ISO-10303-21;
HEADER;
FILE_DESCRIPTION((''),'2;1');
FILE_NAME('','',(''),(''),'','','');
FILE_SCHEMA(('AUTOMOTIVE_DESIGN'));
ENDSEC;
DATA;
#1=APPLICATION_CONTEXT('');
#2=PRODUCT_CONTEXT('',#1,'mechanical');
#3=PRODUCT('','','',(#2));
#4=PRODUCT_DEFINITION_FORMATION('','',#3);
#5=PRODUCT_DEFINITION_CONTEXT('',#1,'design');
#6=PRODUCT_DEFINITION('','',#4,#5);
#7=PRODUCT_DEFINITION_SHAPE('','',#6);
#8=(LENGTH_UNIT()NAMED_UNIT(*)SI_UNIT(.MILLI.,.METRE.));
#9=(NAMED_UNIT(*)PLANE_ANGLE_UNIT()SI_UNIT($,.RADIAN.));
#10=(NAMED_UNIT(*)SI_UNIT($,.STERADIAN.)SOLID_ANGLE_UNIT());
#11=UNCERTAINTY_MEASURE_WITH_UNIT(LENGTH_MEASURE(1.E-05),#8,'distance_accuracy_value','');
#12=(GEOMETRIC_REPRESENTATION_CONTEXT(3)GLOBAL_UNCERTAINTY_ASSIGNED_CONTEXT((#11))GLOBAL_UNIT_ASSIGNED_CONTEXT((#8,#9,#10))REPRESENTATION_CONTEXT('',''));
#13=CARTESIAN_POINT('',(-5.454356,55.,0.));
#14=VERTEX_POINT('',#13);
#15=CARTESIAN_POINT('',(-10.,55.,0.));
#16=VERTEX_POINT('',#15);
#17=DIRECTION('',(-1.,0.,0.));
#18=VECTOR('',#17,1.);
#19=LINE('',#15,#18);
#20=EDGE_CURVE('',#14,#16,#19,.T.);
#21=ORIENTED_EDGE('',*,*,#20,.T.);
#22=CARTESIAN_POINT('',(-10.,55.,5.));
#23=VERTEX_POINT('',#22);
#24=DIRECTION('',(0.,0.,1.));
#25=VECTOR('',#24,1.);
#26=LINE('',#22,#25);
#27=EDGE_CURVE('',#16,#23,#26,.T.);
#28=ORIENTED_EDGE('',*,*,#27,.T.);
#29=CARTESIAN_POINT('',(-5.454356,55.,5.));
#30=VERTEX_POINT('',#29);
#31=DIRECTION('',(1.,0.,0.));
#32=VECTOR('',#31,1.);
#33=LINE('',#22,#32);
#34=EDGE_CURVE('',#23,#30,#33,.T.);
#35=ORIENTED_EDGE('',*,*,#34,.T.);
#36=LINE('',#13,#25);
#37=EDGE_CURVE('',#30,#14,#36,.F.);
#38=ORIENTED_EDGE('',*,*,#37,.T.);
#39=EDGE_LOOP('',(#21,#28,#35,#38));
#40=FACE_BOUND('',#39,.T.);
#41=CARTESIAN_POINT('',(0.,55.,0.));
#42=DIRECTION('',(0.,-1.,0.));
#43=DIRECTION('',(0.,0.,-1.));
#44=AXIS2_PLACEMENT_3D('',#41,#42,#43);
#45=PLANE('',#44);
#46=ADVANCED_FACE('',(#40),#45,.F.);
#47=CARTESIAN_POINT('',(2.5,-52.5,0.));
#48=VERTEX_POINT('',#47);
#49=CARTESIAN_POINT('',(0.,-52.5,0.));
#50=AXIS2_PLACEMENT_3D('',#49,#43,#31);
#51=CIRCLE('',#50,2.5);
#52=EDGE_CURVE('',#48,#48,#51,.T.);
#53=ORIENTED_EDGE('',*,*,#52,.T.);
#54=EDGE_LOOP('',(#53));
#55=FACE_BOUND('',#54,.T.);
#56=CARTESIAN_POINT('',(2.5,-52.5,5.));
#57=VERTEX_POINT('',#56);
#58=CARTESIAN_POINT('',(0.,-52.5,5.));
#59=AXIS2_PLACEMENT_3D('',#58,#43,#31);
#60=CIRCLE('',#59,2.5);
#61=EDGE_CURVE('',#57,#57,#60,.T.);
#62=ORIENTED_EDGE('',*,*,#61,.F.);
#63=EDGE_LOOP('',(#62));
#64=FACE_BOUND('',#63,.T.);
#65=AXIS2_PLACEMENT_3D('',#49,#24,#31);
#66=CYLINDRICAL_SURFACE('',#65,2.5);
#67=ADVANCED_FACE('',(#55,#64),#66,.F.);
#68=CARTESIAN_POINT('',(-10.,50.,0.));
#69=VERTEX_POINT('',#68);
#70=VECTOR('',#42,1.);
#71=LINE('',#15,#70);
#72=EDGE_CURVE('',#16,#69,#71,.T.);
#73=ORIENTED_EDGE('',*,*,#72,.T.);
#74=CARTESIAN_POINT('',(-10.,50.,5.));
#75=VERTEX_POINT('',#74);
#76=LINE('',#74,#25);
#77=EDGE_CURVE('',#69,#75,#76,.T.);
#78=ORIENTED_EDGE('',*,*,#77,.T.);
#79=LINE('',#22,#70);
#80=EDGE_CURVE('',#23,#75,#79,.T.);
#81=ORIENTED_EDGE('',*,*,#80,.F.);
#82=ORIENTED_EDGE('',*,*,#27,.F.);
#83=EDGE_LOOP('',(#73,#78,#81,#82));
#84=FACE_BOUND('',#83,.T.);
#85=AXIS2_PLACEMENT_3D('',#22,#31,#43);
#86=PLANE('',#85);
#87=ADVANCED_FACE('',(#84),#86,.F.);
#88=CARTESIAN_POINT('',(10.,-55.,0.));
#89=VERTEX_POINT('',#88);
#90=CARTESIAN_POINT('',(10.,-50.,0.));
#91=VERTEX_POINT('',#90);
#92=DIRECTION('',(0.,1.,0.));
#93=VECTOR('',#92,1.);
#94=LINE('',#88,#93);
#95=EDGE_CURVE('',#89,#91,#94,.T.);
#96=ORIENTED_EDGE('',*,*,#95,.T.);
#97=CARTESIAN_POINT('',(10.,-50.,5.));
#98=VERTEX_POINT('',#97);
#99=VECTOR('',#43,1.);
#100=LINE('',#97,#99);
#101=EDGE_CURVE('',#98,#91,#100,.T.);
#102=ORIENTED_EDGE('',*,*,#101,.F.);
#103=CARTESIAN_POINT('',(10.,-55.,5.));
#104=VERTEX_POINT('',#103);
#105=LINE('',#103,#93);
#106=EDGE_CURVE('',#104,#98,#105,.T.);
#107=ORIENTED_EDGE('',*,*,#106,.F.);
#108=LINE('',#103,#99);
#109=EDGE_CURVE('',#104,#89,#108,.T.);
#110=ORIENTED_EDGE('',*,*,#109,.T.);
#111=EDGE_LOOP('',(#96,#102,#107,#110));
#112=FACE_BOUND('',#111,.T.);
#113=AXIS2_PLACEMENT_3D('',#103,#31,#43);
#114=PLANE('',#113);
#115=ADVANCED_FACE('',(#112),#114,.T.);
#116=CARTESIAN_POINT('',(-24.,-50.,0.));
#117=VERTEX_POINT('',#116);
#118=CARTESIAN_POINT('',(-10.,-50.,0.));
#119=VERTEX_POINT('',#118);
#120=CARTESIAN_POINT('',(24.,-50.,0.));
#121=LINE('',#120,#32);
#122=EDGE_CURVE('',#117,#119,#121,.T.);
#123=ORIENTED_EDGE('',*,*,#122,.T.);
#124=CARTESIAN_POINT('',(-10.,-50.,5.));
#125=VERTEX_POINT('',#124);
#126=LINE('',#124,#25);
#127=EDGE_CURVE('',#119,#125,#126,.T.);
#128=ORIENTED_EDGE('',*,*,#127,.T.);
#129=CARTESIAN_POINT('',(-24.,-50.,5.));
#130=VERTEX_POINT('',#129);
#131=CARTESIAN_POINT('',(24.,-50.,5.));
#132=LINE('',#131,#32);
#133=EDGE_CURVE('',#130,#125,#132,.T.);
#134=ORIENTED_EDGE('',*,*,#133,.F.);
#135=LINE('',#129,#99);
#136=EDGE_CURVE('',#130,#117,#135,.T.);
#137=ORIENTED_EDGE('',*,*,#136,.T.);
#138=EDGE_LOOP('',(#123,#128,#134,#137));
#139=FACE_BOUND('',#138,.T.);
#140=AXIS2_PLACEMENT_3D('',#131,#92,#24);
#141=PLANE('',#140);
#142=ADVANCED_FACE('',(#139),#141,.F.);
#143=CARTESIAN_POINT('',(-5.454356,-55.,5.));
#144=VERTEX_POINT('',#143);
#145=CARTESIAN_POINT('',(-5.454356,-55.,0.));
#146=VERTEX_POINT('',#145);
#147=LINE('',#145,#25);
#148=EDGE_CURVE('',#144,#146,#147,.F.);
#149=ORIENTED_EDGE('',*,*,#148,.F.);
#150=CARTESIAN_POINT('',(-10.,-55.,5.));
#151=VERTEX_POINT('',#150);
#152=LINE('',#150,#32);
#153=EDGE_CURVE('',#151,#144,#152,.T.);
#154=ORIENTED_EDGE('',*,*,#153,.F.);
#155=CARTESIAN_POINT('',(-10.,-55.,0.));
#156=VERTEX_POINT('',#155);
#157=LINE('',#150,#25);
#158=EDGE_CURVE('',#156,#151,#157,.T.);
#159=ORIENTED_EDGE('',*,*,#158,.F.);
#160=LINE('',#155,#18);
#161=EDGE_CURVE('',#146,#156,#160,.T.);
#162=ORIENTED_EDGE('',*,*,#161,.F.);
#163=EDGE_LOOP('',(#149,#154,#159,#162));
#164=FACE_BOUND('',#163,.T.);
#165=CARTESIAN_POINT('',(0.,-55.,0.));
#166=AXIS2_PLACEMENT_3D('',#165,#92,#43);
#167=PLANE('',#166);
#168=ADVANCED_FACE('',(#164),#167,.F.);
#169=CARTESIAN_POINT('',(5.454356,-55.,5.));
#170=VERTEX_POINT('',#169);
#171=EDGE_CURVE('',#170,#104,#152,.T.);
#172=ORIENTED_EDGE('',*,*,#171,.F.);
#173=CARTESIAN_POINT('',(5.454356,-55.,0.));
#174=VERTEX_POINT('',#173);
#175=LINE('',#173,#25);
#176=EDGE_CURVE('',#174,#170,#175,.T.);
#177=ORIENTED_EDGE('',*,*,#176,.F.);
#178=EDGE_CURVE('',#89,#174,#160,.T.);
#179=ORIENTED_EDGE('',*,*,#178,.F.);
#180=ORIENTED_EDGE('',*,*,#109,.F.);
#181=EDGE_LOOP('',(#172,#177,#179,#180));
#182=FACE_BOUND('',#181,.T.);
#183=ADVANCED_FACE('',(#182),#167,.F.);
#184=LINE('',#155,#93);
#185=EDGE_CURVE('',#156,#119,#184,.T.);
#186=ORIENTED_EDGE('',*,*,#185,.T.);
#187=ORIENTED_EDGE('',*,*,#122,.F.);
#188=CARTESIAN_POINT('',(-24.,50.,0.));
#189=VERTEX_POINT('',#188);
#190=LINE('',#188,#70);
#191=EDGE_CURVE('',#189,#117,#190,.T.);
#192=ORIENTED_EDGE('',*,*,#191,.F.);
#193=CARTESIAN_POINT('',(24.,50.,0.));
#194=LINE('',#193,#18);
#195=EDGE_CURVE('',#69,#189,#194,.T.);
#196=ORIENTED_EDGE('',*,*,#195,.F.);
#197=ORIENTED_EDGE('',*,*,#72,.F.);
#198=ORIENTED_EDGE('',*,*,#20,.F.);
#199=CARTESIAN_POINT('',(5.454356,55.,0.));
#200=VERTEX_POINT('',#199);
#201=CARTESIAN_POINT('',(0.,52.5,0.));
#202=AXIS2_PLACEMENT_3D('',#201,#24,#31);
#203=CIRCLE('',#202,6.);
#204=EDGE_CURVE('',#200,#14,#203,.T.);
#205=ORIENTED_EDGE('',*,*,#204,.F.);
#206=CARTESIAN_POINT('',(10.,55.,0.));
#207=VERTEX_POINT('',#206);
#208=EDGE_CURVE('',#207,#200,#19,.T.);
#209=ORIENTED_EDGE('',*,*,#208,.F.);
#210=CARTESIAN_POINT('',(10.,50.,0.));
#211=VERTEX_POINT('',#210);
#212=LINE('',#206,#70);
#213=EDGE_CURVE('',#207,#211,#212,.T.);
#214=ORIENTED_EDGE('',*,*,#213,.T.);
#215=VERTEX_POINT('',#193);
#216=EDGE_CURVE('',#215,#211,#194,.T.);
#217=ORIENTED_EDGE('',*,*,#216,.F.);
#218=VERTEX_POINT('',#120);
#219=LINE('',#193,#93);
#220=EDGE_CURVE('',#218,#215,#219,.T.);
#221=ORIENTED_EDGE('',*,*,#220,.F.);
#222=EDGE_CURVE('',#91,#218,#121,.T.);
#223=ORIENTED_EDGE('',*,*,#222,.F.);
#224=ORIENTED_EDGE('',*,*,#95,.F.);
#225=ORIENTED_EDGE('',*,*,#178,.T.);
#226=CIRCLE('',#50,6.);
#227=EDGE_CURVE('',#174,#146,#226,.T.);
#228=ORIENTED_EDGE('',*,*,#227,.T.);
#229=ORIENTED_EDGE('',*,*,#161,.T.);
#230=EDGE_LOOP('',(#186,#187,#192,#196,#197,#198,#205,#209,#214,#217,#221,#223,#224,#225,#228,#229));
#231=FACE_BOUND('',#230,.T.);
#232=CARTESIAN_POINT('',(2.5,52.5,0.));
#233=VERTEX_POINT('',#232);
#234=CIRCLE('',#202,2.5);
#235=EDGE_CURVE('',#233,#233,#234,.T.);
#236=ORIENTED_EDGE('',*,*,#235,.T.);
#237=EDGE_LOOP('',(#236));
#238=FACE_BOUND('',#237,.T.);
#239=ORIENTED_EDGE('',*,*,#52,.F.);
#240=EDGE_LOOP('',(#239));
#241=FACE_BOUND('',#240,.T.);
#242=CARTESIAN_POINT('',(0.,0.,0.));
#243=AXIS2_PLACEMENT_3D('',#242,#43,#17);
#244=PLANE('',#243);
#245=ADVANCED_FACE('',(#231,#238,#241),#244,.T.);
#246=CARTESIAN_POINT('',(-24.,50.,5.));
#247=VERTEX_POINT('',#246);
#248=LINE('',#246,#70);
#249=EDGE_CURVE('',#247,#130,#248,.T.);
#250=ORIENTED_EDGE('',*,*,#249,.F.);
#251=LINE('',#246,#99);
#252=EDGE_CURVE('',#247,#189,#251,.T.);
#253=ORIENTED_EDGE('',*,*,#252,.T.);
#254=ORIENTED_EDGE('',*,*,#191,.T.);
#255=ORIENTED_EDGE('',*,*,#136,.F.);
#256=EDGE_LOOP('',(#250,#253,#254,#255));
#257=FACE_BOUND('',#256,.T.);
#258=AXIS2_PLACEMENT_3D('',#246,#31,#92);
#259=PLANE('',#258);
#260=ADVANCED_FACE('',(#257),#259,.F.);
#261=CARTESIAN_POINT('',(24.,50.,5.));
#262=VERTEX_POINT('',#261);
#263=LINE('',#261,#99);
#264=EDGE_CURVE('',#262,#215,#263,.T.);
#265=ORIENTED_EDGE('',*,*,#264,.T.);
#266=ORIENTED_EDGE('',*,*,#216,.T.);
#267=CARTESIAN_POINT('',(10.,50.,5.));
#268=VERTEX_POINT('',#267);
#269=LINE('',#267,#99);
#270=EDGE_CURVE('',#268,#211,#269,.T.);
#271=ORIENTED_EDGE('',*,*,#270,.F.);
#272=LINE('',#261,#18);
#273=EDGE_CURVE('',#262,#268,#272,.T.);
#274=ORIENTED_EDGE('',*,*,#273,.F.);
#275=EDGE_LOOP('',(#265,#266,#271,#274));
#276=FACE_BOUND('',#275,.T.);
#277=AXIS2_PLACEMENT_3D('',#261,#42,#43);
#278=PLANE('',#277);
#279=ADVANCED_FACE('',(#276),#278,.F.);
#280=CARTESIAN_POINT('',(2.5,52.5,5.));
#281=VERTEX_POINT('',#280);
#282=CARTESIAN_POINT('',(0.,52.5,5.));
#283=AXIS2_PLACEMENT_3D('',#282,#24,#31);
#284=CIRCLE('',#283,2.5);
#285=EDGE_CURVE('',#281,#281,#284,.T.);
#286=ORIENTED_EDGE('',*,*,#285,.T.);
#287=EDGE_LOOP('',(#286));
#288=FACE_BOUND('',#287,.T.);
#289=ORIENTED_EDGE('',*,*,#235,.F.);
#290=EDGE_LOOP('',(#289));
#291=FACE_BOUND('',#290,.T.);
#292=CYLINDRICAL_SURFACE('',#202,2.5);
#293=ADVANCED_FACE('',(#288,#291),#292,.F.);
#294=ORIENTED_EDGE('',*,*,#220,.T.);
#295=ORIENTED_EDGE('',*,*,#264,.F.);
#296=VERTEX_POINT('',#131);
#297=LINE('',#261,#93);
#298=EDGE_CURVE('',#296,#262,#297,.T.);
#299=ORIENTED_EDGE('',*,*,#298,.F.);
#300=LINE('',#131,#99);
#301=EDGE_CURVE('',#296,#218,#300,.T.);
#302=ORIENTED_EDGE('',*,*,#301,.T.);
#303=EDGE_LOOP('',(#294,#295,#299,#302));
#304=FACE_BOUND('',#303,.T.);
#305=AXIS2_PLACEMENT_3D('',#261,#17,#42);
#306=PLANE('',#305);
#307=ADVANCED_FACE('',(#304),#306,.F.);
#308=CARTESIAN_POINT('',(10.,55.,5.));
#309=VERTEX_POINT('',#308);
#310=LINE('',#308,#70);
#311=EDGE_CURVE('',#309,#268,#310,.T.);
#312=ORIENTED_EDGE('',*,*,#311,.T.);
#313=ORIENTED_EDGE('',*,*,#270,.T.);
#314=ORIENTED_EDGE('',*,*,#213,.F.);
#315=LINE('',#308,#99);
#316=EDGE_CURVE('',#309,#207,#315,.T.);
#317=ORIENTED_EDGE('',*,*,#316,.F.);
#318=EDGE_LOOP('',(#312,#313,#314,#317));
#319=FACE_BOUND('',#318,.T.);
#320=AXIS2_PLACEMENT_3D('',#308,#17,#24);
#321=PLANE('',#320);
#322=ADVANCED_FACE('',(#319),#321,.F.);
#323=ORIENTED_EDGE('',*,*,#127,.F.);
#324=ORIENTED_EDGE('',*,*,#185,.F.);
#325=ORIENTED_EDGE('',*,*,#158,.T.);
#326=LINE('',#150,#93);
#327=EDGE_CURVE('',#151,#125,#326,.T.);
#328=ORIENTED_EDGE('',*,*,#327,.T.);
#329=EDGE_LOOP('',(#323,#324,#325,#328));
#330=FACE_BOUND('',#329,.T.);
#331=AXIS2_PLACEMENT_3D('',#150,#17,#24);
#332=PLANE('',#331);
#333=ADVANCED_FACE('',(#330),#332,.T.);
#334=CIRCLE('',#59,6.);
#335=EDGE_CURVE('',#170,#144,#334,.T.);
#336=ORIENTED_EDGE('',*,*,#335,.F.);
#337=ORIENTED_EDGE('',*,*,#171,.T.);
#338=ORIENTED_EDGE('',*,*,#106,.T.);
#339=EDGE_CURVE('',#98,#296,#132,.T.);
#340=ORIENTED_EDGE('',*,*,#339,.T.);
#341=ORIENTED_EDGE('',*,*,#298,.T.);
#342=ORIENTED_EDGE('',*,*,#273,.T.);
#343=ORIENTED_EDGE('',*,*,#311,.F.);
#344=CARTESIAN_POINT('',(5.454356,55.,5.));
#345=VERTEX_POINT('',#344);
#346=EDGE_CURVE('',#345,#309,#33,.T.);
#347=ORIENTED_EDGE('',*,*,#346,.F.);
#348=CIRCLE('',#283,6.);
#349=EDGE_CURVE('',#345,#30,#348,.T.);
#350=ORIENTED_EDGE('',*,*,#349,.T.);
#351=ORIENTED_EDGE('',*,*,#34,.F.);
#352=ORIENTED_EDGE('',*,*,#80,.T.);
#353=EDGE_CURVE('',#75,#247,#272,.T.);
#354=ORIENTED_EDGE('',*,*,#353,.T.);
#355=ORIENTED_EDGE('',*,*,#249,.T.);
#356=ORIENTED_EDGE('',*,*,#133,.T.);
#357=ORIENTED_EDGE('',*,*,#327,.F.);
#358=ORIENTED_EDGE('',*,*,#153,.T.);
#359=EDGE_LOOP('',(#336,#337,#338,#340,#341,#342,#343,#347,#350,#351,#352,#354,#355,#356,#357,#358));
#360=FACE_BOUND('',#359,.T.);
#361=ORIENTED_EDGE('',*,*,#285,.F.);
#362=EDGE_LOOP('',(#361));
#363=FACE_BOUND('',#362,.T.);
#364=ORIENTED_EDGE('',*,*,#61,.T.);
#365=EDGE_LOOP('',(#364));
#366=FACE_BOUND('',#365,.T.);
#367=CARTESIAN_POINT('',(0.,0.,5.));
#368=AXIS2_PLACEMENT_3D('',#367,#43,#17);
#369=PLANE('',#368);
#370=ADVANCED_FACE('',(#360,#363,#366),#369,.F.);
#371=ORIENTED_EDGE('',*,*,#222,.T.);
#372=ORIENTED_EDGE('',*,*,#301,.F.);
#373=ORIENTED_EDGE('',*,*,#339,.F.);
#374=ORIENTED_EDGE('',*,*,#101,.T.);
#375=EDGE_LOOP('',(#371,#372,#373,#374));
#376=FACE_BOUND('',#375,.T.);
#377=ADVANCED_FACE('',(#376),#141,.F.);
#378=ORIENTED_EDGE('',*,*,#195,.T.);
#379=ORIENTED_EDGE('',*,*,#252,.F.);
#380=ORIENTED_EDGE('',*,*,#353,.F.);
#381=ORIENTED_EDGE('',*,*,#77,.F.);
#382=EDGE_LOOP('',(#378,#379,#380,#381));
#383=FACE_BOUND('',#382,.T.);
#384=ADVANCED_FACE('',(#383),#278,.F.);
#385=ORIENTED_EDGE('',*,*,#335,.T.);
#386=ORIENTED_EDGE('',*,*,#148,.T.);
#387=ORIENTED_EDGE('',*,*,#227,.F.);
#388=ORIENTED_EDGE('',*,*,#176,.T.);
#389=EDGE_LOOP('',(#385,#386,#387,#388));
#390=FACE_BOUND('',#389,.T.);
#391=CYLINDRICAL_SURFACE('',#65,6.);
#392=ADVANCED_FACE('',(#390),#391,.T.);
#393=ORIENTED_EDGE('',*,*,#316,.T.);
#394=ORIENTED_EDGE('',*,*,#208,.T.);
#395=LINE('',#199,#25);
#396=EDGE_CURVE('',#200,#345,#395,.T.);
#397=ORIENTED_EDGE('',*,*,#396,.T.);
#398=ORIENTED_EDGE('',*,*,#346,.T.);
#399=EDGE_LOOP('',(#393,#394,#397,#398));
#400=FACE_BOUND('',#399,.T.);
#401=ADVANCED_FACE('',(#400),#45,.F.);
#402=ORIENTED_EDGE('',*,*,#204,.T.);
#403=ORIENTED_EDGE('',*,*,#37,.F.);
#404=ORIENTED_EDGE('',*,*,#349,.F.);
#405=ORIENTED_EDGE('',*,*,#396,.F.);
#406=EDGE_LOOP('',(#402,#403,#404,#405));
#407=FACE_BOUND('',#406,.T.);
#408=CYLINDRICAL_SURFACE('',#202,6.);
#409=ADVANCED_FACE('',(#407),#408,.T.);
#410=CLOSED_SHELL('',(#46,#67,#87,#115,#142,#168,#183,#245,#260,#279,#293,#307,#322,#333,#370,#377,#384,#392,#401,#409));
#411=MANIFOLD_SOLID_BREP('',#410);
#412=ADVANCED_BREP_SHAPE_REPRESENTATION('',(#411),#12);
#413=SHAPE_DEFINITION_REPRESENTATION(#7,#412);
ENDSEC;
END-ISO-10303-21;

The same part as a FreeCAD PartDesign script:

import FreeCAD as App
import Part
import Sketcher
Q = App.Units.Quantity

doc = App.newDocument("Part")
params = doc.addObject("Spreadsheet::Sheet", "Params")
for row, (alias, value) in enumerate([
    ("sketch1_width", "48 mm"),
    ("sketch1_height", "100 mm"),
    ("pad1_length", "5 mm"),
    ("sketch2_width", "20 mm"),
    ("sketch2_height", "5 mm"),
    ("pad2_length", "5 mm"),
    ("sketch3_diameter", "12 mm"),
    ("pad3_length", "5 mm"),
    ("sketch4_diameter", "5 mm"),
    ("pocket1_length", "5 mm"),
], start=1):
    params.set(f"A{row}", alias)
    params.set(f"B{row}", "=" + value)
    params.setAlias(f"B{row}", alias)

body = doc.addObject("PartDesign::Body", "Body")

# Sketch on XY plane
sketch1 = body.newObject("Sketcher::SketchObject", "Sketch")
sketch1.AttachmentSupport = (doc.getObject("XY_Plane"), [""])
sketch1.MapMode = "FlatFace"
sketch1.addGeometry([
    Part.LineSegment(App.Vector(-24, 50, 0), App.Vector(-24, -50, 0)),
    Part.LineSegment(App.Vector(-24, -50, 0), App.Vector(24, -50, 0)),
    Part.LineSegment(App.Vector(24, -50, 0), App.Vector(24, 50, 0)),
    Part.LineSegment(App.Vector(24, 50, 0), App.Vector(-24, 50, 0)),
], False)
sketch1.addConstraint([
    Sketcher.Constraint("Coincident", 0, 2, 1, 1),
    Sketcher.Constraint("Coincident", 1, 2, 2, 1),
    Sketcher.Constraint("Coincident", 2, 2, 3, 1),
    Sketcher.Constraint("Coincident", 3, 2, 0, 1),
    Sketcher.Constraint("Vertical", 0),
    Sketcher.Constraint("Horizontal", 1),
    Sketcher.Constraint("Vertical", 2),
    Sketcher.Constraint("Horizontal", 3),
    Sketcher.Constraint("Symmetric", 0, 2, 2, 2, -1, 1),
    Sketcher.Constraint("DistanceX", 1, 1, 1, 2, Q("48 mm")),
    Sketcher.Constraint("DistanceY", 0, 2, 0, 1, Q("100 mm")),
])
sketch1.setExpression("Constraints[9]", "Params.sketch1_width")
sketch1.setExpression("Constraints[10]", "Params.sketch1_height")
pad1 = body.newObject("PartDesign::Pad", "Pad")
pad1.Profile = sketch1
pad1.setExpression("Length", "Params.pad1_length")

# Sketch on XZ plane
sketch2 = body.newObject("Sketcher::SketchObject", "Sketch001")
sketch2.AttachmentSupport = (doc.getObject("XZ_Plane"), [""])
sketch2.MapMode = "FlatFace"
sketch2.AttachmentOffset = App.Placement(App.Vector(0, 0, -50), App.Rotation())
sketch2.addGeometry([
    Part.LineSegment(App.Vector(-10, 0, 0), App.Vector(-10, 5, 0)),
    Part.LineSegment(App.Vector(-10, 5, 0), App.Vector(10, 5, 0)),
    Part.LineSegment(App.Vector(10, 5, 0), App.Vector(10, 0, 0)),
    Part.LineSegment(App.Vector(10, 0, 0), App.Vector(-10, 0, 0)),
], False)
sketch2.addConstraint([
    Sketcher.Constraint("Coincident", 0, 2, 1, 1),
    Sketcher.Constraint("Coincident", 1, 2, 2, 1),
    Sketcher.Constraint("Coincident", 2, 2, 3, 1),
    Sketcher.Constraint("Coincident", 3, 2, 0, 1),
    Sketcher.Constraint("Vertical", 0),
    Sketcher.Constraint("Horizontal", 1),
    Sketcher.Constraint("Vertical", 2),
    Sketcher.Constraint("Horizontal", 3),
    Sketcher.Constraint("Symmetric", 2, 2, 3, 2, -1, 1),
    Sketcher.Constraint("DistanceX", 1, 1, 1, 2, Q("20 mm")),
    Sketcher.Constraint("DistanceY", 0, 1, 0, 2, Q("5 mm")),
])
sketch2.setExpression("Constraints[9]", "Params.sketch2_width")
sketch2.setExpression("Constraints[10]", "Params.sketch2_height")
pad2 = body.newObject("PartDesign::Pad", "Pad001")
pad2.Profile = sketch2
pad2.setExpression("Length", "Params.pad2_length")
pad2.Reversed = True
doc.recompute()

mirrored = body.newObject("PartDesign::Mirrored", "Mirrored")
mirrored.Originals = [pad2]
mirrored.MirrorPlane = (doc.getObject("XZ_Plane"), [""])
body.Tip = mirrored

# Sketch on XY plane
sketch3 = body.newObject("Sketcher::SketchObject", "Sketch002")
sketch3.AttachmentSupport = (doc.getObject("XY_Plane"), [""])
sketch3.MapMode = "FlatFace"
sketch3.AttachmentOffset = App.Placement(App.Vector(0, 0, 5), App.Rotation())
sketch3.addGeometry(Part.Circle(App.Vector(0, 52, 0), App.Vector(0, 0, 1), 6), False)
sketch3.addConstraint([
    Sketcher.Constraint("PointOnObject", 0, 3, -2),
    Sketcher.Constraint("Diameter", 0, Q("12 mm")),
    Sketcher.Constraint("DistanceY", -1, 1, 0, 3, Q("52.5 mm")),
])
sketch3.setExpression("Constraints[1]", "Params.sketch3_diameter")
pad3 = body.newObject("PartDesign::Pad", "Pad002")
pad3.Profile = sketch3
pad3.setExpression("Length", "Params.pad3_length")
pad3.Reversed = True

# Sketch on XY plane
sketch4 = body.newObject("Sketcher::SketchObject", "Sketch003")
sketch4.AttachmentSupport = (doc.getObject("XY_Plane"), [""])
sketch4.MapMode = "FlatFace"
sketch4.AttachmentOffset = App.Placement(App.Vector(0, 0, 5), App.Rotation())
sketch4.addGeometry(Part.Circle(App.Vector(0, 52.5, 0), App.Vector(0, 0, 1), 2.5), False)
sketch4.addConstraint([
    Sketcher.Constraint("PointOnObject", 0, 3, -2),
    Sketcher.Constraint("Diameter", 0, Q("5 mm")),
    Sketcher.Constraint("DistanceY", -1, 1, 0, 3, Q("52.5 mm")),
])
sketch4.setExpression("Constraints[1]", "Params.sketch4_diameter")
pocket1 = body.newObject("PartDesign::Pocket", "Pocket")
pocket1.Profile = sketch4
pocket1.setExpression("Length", "Params.pocket1_length")
doc.recompute()

mirrored2 = body.newObject("PartDesign::Mirrored", "Mirrored001")
mirrored2.Originals = [pad3, pocket1]
mirrored2.MirrorPlane = (doc.getObject("XZ_Plane"), [""])
body.Tip = mirrored2

doc.recompute()
